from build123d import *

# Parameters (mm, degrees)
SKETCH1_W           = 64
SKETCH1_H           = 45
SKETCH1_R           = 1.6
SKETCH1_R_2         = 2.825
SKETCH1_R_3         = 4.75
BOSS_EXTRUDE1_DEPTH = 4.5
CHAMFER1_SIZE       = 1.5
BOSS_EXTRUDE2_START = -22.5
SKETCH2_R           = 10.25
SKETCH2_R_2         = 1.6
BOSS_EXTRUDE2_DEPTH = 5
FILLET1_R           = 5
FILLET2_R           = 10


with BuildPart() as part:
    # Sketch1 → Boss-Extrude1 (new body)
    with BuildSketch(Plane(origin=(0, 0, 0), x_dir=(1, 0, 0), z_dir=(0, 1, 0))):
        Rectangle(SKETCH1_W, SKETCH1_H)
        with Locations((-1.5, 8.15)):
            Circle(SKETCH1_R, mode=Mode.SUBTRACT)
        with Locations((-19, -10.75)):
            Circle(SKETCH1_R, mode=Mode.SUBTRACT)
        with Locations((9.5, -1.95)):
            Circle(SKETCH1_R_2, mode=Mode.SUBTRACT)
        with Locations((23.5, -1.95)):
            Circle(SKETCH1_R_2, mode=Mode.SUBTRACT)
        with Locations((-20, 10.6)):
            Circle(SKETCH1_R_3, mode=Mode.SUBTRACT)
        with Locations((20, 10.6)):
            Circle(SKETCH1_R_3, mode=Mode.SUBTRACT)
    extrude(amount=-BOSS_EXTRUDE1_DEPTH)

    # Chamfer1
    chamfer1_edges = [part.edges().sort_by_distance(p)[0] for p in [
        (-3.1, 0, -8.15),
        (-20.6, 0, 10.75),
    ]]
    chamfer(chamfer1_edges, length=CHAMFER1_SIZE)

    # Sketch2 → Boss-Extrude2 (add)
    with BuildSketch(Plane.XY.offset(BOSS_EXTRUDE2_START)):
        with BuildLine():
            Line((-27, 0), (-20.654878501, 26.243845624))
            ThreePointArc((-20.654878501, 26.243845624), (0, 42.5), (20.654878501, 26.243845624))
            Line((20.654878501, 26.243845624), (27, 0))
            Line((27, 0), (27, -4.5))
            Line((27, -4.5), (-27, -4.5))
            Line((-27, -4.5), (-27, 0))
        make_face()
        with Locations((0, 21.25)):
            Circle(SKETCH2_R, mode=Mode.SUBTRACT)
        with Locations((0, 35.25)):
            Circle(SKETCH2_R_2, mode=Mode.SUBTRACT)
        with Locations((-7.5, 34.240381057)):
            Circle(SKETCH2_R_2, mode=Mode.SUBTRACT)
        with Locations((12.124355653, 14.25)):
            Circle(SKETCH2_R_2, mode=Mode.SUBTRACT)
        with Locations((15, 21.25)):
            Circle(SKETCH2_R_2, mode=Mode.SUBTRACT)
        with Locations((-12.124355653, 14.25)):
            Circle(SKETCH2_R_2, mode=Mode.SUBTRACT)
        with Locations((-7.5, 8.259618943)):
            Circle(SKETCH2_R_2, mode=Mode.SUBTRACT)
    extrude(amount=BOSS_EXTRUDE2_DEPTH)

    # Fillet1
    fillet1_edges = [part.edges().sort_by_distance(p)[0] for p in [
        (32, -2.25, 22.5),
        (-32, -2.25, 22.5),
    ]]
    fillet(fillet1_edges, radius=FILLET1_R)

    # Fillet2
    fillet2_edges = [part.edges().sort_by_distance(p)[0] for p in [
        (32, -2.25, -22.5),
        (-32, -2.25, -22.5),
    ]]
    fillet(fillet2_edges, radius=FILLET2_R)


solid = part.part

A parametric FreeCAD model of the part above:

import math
import FreeCAD as App
import Part
import Sketcher


def edges_at(feature, points):
    """Names of the edges that pass closest to the given points."""
    edges = feature.Shape.Edges
    near = lambda p: min(range(len(edges)), key=lambda i: edges[i].distToShape(Part.Vertex(*p))[0])
    return sorted({f"Edge{near(p) + 1}" for p in points})

doc = App.newDocument("Part")
params = doc.addObject("Spreadsheet::Sheet", "Params")
for row, (alias, value) in enumerate([
    ("sketch1_diameter", "3.2 mm"),
    ("sketch1_diameter2", "9.5 mm"),
    ("sketch1_diameter3", "5.65 mm"),
    ("sketch1_width", "64 mm"),
    ("sketch1_height", "45 mm"),
    ("pad1_length", "4.5 mm"),
    ("chamfer_size", "1.5 mm"),
    ("sketch2_diameter", "3.2 mm"),
    ("sketch2_diameter2", "20.5 mm"),
    ("sketch2_width", "54 mm"),
    ("sketch2_radius", "21.25 mm"),
    ("sketch2_length", "27 mm"),
    ("pad2_length", "5 mm"),
    ("fillet_radius", "5 mm"),
    ("fillet2_radius", "10 mm"),
], start=1):
    params.set(f"A{row}", alias)
    params.set(f"B{row}", "=" + value)
    params.setAlias(f"B{row}", alias)

body = doc.addObject("PartDesign::Body", "Body")

sketch1 = body.newObject("Sketcher::SketchObject", "Sketch")
sketch1.AttachmentSupport = (doc.getObject("XZ_Plane"), [""])
sketch1.MapMode = "FlatFace"
sketch1.addGeometry(Part.LineSegment(App.Vector(-32, -22.5, 0), App.Vector(-32, 22.5, 0)), False)
sketch1.addGeometry(Part.LineSegment(App.Vector(-32, 22.5, 0), App.Vector(32, 22.5, 0)), False)
sketch1.addGeometry(Part.LineSegment(App.Vector(32, 22.5, 0), App.Vector(32, -22.5, 0)), False)
sketch1.addGeometry(Part.LineSegment(App.Vector(32, -22.5, 0), App.Vector(-32, -22.5, 0)), False)
sketch1.addGeometry(Part.Circle(App.Vector(-19, 10.8, 0), App.Vector(0, 0, 1), 1.6), False)
sketch1.addGeometry(Part.Circle(App.Vector(9.5, 1.9, 0), App.Vector(0, 0, 1), 2.8), False)
sketch1.addGeometry(Part.Circle(App.Vector(23.5, 1.9, 0), App.Vector(0, 0, 1), 2.8), False)
sketch1.addGeometry(Part.Circle(App.Vector(-1.5, -8.2, 0), App.Vector(0, 0, 1), 1.6), False)
sketch1.addGeometry(Part.Circle(App.Vector(-20, -10.6, 0), App.Vector(0, 0, 1), 4.8), False)
sketch1.addGeometry(Part.Circle(App.Vector(20, -10.6, 0), App.Vector(0, 0, 1), 4.8), False)
sketch1.addConstraint(Sketcher.Constraint("Coincident", 0, 2, 1, 1))
sketch1.addConstraint(Sketcher.Constraint("Coincident", 1, 2, 2, 1))
sketch1.addConstraint(Sketcher.Constraint("Coincident", 2, 2, 3, 1))
sketch1.addConstraint(Sketcher.Constraint("Coincident", 3, 2, 0, 1))
sketch1.addConstraint(Sketcher.Constraint("Vertical", 0))
sketch1.addConstraint(Sketcher.Constraint("Horizontal", 1))
sketch1.addConstraint(Sketcher.Constraint("Vertical", 2))
sketch1.addConstraint(Sketcher.Constraint("Horizontal", 3))
sketch1.addConstraint(Sketcher.Constraint("Equal", 5, 6))
sketch1.addConstraint(Sketcher.Constraint("Equal", 4, 7))
sketch1.addConstraint(Sketcher.Constraint("Equal", 8, 9))
sketch1.addConstraint(Sketcher.Constraint("Symmetric", 0, 2, 2, 2, -1, 1))
sketch1.addConstraint(Sketcher.Constraint("Symmetric", 8, 3, 9, 3, -2))
sketch1.addConstraint(Sketcher.Constraint("Horizontal", 5, 3, 6, 3))
sketch1.addConstraint(Sketcher.Constraint("Diameter", 4, 3.2))
sketch1.addConstraint(Sketcher.Constraint("Diameter", 8, 9.5))
sketch1.addConstraint(Sketcher.Constraint("Diameter", 5, 5.65))
sketch1.addConstraint(Sketcher.Constraint("DistanceX", 1, 1, 1, 2, 64.0))
sketch1.addConstraint(Sketcher.Constraint("DistanceY", 0, 1, 0, 2, 45.0))
sketch1.addConstraint(Sketcher.Constraint("DistanceX", 4, 3, -1, 1, 19.0))
sketch1.addConstraint(Sketcher.Constraint("DistanceX", 8, 3, -1, 1, 20.0))
sketch1.addConstraint(Sketcher.Constraint("DistanceX", 5, 3, 6, 3, 14.0))
sketch1.addConstraint(Sketcher.Constraint("DistanceX", 7, 3, 5, 3, 11.0))
sketch1.addConstraint(Sketcher.Constraint("DistanceX", -1, 1, 5, 3, 9.5))
sketch1.addConstraint(Sketcher.Constraint("DistanceY", 8, 3, -1, 1, 10.6))
sketch1.addConstraint(Sketcher.Constraint("DistanceY", 5, 3, 4, 3, 8.8))
sketch1.addConstraint(Sketcher.Constraint("DistanceY", 7, 3, 5, 3, 10.1))
sketch1.addConstraint(Sketcher.Constraint("DistanceY", -1, 1, 4, 3, 10.75))
sketch1.setExpression("Constraints[14]", "Params.sketch1_diameter")
sketch1.setExpression("Constraints[15]", "Params.sketch1_diameter2")
sketch1.setExpression("Constraints[16]", "Params.sketch1_diameter3")
sketch1.setExpression("Constraints[17]", "Params.sketch1_width")
sketch1.setExpression("Constraints[18]", "Params.sketch1_height")
pad1 = body.newObject("PartDesign::Pad", "Pad")
pad1.Profile = sketch1
pad1.setExpression("Length", "Params.pad1_length")
doc.recompute()

chamfer = body.newObject("PartDesign::Chamfer", "Chamfer")
chamfer.Base = (pad1, edges_at(pad1, [(-3.1, 0, -8.15), (-20.6, 0, 10.75)]))
chamfer.setExpression("Size", "Params.chamfer_size")

sketch2 = body.newObject("Sketcher::SketchObject", "Sketch001")
sketch2.AttachmentSupport = (doc.getObject("XY_Plane"), [""])
sketch2.MapMode = "FlatFace"
sketch2.AttachmentOffset = App.Placement(App.Vector(0, 0, -22.5), App.Rotation())
sketch2.addGeometry(Part.LineSegment(App.Vector(-20.7, 26.2, 0), App.Vector(-27, 0, 0)), False)
sketch2.addGeometry(Part.LineSegment(App.Vector(-27, 0, 0), App.Vector(-27, -4.5, 0)), False)
sketch2.addGeometry(Part.LineSegment(App.Vector(-27, -4.5, 0), App.Vector(27, -4.5, 0)), False)
sketch2.addGeometry(Part.LineSegment(App.Vector(27, -4.5, 0), App.Vector(27, 0, 0)), False)
sketch2.addGeometry(Part.LineSegment(App.Vector(27, 0, 0), App.Vector(20.7, 26.2, 0)), False)
sketch2.addGeometry(Part.ArcOfCircle(Part.Circle(App.Vector(0, 21.2, 0), App.Vector(0, 0, 1), 21.2), math.radians(14), math.radians(166)), False)
sketch2.addGeometry(Part.Circle(App.Vector(12.1, 14.2, 0), App.Vector(0, 0, 1), 1.6), False)
sketch2.addGeometry(Part.Circle(App.Vector(15, 21.2, 0), App.Vector(0, 0, 1), 1.6), False)
sketch2.addGeometry(Part.Circle(App.Vector(-7.5, 8.3, 0), App.Vector(0, 0, 1), 1.6), False)
sketch2.addGeometry(Part.Circle(App.Vector(0, 21.2, 0), App.Vector(0, 0, 1), 10.2), False)
sketch2.addGeometry(Part.Circle(App.Vector(-12.1, 14.2, 0), App.Vector(0, 0, 1), 1.6), False)
sketch2.addGeometry(Part.Circle(App.Vector(0, 35.2, 0), App.Vector(0, 0, 1), 1.6), False)
sketch2.addGeometry(Part.Circle(App.Vector(-7.5, 34.2, 0), App.Vector(0, 0, 1), 1.6), False)
sketch2.addConstraint(Sketcher.Constraint("Coincident", 0, 2, 1, 1))
sketch2.addConstraint(Sketcher.Constraint("Coincident", 1, 2, 2, 1))
sketch2.addConstraint(Sketcher.Constraint("Coincident", 2, 2, 3, 1))
sketch2.addConstraint(Sketcher.Constraint("Coincident", 3, 2, 4, 1))
sketch2.addConstraint(Sketcher.Constraint("Tangent", 4, 2, 5, 1))
sketch2.addConstraint(Sketcher.Constraint("Tangent", 5, 2, 0, 1))
sketch2.addConstraint(Sketcher.Constraint("Vertical", 1))
sketch2.addConstraint(Sketcher.Constraint("Horizontal", 2))
sketch2.addConstraint(Sketcher.Constraint("Vertical", 3))
sketch2.addConstraint(Sketcher.Constraint("Coincident", 9, 3, 5, 3))
sketch2.addConstraint(Sketcher.Constraint("Equal", 6, 7))
sketch2.addConstraint(Sketcher.Constraint("Equal", 7, 8))
sketch2.addConstraint(Sketcher.Constraint("Equal", 8, 10))
sketch2.addConstraint(Sketcher.Constraint("Equal", 10, 11))
sketch2.addConstraint(Sketcher.Constraint("Equal", 11, 12))
sketch2.addConstraint(Sketcher.Constraint("Symmetric", 0, 2, 3, 2, -1, 1))
sketch2.addConstraint(Sketcher.Constraint("Symmetric", 6, 3, 10, 3, -2))
sketch2.addConstraint(Sketcher.Constraint("Symmetric", 4, 2, 5, 2, -2))
sketch2.addConstraint(Sketcher.Constraint("PointOnObject", 11, 3, -2))
sketch2.addConstraint(Sketcher.Constraint("Horizontal", 5, 3, 7, 3))
sketch2.addConstraint(Sketcher.Constraint("Vertical", 8, 3, 12, 3))
sketch2.addConstraint(Sketcher.Constraint("Diameter", 6, 3.2))
sketch2.addConstraint(Sketcher.Constraint("Diameter", 9, 20.5))
sketch2.addConstraint(Sketcher.Constraint("DistanceX", 2, 1, 2, 2, 54.0))
sketch2.addConstraint(Sketcher.Constraint("Radius", 5, 21.25))
sketch2.addConstraint(Sketcher.Constraint("Distance", 0, 27.0))
sketch2.addConstraint(Sketcher.Constraint("DistanceY", 1, 2, 1, 1, 4.5))
sketch2.addConstraint(Sketcher.Constraint("DistanceX", -1, 1, 7, 3, 15.0))
sketch2.addConstraint(Sketcher.Constraint("DistanceY", 6, 3, 5, 3, 7.0))
sketch2.addConstraint(Sketcher.Constraint("DistanceY", 5, 3, 11, 3, 14.0))
sketch2.addConstraint(Sketcher.Constraint("DistanceX", 8, 3, -1, 1, 7.5))
sketch2.addConstraint(Sketcher.Constraint("DistanceY", -1, 1, 8, 3, 8.259619))
sketch2.addConstraint(Sketcher.Constraint("DistanceY", -1, 1, 12, 3, 34.240381))
sketch2.addConstraint(Sketcher.Constraint("DistanceX", 10, 3, 6, 3, 24.248711))
sketch2.setExpression("Constraints[21]", "Params.sketch2_diameter")
sketch2.setExpression("Constraints[22]", "Params.sketch2_diameter2")
sketch2.setExpression("Constraints[23]", "Params.sketch2_width")
sketch2.setExpression("Constraints[24]", "Params.sketch2_radius")
sketch2.setExpression("Constraints[25]", "Params.sketch2_length")
pad2 = body.newObject("PartDesign::Pad", "Pad001")
pad2.Profile = sketch2
pad2.setExpression("Length", "Params.pad2_length")
doc.recompute()

fillet = body.newObject("PartDesign::Fillet", "Fillet")
fillet.Base = (pad2, edges_at(pad2, [(32, -2.25, 22.5), (-32, -2.25, 22.5)]))
fillet.setExpression("Radius", "Params.fillet_radius")
doc.recompute()

fillet2 = body.newObject("PartDesign::Fillet", "Fillet001")
fillet2.Base = (fillet, edges_at(fillet, [(32, -2.25, -22.5), (-32, -2.25, -22.5)]))
fillet2.setExpression("Radius", "Params.fillet2_radius")

doc.recompute()
